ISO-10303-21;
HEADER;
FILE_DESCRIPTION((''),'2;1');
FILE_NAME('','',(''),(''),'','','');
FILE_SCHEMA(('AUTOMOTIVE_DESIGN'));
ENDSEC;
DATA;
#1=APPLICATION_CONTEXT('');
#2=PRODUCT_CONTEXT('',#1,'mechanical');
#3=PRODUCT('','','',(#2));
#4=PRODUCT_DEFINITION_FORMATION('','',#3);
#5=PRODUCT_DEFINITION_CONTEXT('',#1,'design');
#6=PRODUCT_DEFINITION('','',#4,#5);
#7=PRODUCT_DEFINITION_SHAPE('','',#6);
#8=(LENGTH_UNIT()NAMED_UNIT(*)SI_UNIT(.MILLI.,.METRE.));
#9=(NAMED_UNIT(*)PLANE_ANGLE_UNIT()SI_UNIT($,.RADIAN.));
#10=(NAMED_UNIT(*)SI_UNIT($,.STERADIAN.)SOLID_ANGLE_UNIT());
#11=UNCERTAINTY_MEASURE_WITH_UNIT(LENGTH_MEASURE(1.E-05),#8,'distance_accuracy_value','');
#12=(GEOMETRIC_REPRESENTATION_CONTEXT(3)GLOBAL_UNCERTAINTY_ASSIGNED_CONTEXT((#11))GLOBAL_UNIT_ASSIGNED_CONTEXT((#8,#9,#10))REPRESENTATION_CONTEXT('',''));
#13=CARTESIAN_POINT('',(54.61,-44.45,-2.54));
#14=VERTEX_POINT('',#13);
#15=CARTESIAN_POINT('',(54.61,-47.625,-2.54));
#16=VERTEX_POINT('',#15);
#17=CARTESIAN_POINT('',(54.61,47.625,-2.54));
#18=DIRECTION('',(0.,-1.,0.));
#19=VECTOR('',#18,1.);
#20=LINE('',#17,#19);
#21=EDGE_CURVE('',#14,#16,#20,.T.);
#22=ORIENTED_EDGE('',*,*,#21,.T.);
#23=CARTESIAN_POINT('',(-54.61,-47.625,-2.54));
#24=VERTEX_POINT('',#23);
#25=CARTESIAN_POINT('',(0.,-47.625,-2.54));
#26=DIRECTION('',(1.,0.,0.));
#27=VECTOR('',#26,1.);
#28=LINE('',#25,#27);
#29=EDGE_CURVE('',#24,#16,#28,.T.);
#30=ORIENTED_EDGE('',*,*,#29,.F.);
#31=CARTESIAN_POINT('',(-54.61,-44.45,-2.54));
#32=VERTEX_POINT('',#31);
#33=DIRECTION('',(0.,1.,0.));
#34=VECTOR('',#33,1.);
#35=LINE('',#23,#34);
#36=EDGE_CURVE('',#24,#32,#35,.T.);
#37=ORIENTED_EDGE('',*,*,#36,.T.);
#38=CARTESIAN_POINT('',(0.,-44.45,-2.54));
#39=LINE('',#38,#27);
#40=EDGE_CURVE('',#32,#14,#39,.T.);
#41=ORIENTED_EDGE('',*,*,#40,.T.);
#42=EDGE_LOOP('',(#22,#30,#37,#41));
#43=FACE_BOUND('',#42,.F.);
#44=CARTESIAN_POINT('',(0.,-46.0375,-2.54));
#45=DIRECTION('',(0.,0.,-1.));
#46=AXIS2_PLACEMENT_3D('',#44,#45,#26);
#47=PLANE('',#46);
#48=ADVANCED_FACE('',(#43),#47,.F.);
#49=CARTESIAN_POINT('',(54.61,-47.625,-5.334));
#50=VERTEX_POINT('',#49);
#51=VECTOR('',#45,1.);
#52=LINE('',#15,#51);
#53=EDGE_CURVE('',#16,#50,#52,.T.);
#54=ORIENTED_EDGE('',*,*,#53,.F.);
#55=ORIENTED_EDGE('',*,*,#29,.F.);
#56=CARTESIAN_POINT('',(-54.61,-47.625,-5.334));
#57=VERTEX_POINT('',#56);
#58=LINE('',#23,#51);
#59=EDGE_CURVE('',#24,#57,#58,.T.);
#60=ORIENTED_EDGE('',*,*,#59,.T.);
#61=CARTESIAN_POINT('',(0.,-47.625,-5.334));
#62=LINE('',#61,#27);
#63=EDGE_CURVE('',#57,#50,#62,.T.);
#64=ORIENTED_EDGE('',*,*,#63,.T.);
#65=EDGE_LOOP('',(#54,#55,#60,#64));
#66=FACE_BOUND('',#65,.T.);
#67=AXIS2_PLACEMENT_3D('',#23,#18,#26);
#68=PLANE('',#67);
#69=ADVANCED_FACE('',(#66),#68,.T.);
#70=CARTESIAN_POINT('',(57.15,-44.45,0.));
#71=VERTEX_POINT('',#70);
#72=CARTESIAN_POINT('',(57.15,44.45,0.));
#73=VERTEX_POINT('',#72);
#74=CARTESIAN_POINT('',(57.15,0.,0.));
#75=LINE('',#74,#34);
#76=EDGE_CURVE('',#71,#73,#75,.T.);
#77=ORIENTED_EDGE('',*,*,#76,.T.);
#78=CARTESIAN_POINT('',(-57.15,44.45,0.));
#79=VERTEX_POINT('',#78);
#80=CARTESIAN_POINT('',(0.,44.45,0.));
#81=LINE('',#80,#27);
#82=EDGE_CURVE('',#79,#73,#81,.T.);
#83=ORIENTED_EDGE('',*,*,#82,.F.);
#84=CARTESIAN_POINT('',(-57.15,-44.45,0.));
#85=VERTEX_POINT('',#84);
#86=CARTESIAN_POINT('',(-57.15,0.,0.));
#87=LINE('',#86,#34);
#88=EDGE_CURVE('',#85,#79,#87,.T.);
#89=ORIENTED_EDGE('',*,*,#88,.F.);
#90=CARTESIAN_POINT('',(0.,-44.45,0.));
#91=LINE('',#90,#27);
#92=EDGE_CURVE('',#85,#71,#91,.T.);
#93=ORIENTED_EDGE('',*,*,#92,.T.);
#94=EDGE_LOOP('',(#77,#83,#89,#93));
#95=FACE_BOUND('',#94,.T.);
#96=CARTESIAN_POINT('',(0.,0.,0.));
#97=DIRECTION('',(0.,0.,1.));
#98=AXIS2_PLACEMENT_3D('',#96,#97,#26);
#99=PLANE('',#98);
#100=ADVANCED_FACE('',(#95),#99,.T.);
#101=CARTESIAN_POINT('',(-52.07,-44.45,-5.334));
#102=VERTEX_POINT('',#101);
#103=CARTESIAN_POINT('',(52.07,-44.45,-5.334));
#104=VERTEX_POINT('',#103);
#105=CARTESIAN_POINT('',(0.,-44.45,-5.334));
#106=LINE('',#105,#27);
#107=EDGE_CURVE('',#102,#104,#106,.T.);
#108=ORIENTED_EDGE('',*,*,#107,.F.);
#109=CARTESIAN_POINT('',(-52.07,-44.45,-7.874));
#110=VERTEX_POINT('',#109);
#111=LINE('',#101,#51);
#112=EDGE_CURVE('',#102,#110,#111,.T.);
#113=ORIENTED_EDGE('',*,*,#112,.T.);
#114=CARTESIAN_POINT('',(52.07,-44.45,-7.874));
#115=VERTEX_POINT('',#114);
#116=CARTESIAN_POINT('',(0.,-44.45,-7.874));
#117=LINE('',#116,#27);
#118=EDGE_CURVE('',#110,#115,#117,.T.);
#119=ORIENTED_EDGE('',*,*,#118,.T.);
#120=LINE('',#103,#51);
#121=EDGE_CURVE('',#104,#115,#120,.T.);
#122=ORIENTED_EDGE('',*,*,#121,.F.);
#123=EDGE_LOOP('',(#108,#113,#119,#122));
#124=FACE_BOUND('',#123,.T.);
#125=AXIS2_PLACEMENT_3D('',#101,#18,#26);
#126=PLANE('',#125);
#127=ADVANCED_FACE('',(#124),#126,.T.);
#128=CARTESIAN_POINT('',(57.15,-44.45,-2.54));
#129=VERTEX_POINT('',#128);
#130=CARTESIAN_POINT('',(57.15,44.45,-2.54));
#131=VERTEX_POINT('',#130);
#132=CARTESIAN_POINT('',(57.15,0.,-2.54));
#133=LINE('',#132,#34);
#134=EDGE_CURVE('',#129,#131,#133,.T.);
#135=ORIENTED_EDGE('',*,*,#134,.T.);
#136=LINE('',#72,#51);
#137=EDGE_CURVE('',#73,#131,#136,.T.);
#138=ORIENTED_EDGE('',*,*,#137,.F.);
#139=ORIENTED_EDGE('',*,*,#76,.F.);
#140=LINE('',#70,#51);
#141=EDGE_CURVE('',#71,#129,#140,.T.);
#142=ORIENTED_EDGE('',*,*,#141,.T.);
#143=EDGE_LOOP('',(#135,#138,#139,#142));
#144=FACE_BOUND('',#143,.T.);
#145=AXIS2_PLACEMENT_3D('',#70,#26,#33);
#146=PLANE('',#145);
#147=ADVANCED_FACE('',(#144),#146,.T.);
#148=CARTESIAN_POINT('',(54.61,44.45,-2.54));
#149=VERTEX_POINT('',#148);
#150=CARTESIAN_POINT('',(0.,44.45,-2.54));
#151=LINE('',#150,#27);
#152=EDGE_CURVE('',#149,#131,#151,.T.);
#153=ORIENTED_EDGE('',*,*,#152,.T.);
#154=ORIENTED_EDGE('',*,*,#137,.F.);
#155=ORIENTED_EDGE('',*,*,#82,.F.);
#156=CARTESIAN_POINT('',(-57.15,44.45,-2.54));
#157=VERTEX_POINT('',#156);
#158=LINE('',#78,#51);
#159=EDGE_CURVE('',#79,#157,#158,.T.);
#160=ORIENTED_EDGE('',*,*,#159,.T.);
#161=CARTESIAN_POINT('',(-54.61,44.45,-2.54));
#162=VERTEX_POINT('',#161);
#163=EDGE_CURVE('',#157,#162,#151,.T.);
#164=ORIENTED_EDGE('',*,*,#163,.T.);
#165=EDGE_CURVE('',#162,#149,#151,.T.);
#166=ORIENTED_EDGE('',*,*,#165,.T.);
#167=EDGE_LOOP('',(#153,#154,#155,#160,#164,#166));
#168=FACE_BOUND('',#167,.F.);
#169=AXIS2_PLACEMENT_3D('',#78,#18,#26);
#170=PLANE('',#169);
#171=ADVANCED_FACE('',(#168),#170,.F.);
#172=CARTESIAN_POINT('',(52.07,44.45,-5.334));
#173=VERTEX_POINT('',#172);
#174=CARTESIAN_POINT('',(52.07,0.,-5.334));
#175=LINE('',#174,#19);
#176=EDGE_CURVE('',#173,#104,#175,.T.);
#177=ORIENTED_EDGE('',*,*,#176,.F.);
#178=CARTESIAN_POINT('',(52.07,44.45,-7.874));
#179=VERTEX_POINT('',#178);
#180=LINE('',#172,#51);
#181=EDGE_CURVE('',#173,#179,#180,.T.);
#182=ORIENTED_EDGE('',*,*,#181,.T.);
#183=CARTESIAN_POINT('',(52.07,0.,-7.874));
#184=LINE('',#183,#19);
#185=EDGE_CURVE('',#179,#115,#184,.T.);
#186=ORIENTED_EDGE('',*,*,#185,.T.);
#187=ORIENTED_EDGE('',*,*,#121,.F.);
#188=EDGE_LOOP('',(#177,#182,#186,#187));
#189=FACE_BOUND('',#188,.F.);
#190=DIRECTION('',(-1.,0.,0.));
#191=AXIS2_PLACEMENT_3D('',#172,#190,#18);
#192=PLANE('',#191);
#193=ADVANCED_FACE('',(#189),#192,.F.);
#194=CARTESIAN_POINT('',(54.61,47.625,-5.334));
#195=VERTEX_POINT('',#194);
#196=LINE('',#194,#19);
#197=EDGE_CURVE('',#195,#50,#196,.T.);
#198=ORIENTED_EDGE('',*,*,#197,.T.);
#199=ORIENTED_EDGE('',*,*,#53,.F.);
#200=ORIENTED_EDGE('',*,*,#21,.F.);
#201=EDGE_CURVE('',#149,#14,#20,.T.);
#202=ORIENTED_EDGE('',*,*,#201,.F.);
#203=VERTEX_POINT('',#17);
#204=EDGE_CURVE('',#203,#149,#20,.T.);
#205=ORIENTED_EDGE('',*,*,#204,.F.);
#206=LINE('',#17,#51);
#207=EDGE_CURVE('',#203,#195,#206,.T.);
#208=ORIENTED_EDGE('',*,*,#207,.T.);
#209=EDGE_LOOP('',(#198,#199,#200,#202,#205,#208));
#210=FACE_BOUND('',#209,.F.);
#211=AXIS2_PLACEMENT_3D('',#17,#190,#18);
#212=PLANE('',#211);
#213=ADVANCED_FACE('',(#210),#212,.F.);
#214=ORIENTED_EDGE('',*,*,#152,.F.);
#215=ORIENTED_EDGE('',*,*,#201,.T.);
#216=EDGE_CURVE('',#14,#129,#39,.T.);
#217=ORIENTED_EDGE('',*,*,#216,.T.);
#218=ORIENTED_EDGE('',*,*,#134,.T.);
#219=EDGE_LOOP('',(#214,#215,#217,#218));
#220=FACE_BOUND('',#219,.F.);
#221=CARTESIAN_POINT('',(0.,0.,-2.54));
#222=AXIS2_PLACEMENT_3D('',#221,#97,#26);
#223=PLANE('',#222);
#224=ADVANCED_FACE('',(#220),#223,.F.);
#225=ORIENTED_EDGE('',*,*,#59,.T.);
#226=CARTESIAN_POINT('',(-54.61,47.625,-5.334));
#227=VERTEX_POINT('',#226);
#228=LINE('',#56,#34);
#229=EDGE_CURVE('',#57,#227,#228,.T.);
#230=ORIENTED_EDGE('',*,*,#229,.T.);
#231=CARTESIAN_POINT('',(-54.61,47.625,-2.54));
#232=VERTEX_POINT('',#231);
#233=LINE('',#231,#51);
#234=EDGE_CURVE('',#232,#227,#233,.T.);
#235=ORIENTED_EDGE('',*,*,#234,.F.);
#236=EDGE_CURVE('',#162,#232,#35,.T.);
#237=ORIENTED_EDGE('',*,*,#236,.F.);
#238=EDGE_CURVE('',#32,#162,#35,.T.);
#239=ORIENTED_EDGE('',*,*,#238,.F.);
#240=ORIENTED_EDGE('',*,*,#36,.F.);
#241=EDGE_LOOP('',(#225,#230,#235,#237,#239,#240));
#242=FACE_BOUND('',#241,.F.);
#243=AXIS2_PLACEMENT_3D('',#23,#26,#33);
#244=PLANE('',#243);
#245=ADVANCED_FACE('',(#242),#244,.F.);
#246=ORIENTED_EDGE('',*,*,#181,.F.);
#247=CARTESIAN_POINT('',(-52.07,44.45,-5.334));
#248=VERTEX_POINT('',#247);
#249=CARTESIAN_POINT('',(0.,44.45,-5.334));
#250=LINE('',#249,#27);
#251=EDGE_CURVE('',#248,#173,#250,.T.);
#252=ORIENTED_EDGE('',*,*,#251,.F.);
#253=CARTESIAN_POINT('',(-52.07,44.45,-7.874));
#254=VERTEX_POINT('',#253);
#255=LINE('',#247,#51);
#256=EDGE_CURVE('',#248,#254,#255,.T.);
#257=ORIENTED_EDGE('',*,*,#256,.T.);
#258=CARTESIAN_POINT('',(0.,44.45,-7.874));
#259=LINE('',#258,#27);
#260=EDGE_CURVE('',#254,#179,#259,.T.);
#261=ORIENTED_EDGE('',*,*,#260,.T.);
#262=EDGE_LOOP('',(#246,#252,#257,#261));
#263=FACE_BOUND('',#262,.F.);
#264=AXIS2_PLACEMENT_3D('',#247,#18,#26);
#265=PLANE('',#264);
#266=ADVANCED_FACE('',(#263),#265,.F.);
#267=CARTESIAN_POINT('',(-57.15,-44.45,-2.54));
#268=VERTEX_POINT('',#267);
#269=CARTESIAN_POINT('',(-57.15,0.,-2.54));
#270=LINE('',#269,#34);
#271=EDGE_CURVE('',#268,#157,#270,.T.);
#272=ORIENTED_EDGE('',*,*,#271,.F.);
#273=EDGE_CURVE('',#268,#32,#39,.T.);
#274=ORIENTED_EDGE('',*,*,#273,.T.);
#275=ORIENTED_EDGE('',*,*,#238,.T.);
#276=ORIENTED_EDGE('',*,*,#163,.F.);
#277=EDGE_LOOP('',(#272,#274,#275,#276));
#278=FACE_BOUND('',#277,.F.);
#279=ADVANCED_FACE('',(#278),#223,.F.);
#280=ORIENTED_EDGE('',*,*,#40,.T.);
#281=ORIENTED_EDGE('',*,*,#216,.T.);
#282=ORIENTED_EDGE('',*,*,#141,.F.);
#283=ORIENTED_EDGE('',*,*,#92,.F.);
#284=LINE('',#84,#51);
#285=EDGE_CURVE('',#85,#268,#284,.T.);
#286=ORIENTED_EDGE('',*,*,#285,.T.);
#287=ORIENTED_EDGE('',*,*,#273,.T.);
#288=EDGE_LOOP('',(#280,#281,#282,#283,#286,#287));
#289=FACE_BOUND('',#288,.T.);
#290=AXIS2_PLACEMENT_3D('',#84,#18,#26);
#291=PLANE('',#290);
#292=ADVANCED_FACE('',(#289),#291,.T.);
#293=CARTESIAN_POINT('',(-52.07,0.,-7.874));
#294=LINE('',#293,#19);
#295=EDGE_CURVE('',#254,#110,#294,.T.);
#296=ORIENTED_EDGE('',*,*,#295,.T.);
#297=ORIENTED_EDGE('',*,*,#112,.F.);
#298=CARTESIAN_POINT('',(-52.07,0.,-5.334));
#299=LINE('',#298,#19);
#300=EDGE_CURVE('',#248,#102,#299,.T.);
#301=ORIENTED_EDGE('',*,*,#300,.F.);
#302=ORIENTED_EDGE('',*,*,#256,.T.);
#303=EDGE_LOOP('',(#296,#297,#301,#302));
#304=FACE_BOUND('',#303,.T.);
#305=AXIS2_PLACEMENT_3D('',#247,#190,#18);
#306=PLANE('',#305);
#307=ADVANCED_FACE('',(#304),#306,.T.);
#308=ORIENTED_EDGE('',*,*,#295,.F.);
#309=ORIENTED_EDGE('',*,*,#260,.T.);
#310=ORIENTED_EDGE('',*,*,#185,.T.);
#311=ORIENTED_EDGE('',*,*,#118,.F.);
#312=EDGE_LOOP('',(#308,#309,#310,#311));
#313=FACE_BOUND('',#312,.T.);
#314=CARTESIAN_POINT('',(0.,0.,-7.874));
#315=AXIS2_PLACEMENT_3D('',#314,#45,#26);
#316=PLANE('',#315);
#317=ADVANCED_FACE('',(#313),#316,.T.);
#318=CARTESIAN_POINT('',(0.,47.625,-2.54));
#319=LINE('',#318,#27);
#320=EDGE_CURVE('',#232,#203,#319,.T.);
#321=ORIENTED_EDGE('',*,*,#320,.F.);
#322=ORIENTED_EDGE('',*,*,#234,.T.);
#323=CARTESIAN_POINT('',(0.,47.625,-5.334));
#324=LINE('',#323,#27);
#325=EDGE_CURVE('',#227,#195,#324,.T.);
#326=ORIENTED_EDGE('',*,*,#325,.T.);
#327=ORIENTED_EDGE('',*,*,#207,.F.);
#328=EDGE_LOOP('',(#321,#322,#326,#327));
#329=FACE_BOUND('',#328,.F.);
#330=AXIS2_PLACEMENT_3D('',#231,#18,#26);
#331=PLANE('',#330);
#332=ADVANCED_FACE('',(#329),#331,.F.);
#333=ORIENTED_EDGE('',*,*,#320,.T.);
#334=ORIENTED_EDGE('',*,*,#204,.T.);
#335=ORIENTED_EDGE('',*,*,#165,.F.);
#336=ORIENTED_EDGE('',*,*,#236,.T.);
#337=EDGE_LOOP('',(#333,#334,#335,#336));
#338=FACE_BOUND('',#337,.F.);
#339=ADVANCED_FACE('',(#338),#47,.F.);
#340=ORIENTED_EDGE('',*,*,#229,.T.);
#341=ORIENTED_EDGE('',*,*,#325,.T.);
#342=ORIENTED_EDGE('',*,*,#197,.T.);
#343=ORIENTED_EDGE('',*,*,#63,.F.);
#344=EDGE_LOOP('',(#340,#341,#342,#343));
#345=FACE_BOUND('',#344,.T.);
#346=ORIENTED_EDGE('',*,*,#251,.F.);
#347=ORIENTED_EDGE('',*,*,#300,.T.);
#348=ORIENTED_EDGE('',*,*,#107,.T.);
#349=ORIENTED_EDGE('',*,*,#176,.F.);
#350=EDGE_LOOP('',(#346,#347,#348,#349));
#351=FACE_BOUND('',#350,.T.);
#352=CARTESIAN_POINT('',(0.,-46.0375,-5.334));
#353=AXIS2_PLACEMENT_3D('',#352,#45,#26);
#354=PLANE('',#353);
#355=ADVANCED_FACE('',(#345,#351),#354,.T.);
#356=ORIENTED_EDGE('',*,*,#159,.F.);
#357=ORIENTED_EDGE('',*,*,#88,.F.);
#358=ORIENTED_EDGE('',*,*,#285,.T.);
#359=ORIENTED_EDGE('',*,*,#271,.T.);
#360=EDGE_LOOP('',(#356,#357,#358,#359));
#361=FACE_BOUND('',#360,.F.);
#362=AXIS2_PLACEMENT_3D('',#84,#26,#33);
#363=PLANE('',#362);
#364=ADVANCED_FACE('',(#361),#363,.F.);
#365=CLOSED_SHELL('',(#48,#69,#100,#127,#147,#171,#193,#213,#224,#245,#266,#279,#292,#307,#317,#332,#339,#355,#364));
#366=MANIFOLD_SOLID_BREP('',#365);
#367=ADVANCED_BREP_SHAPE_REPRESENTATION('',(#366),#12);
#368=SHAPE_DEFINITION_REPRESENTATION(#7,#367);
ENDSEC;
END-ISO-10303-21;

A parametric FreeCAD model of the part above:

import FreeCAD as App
import Part
import Sketcher
from FreeCAD import Vector
Q = App.Units.Quantity


def add_polygon(sketch, points):
    """Adds a closed chain of lines whose ends are joined by coincident constraints."""
    first, n = sketch.GeometryCount, len(points)
    for a, b in zip(points, points[1:] + points[:1]):
        sketch.addGeometry(Part.LineSegment(App.Vector(*a, 0), App.Vector(*b, 0)), False)
    for i in range(n):
        sketch.addConstraint(Sketcher.Constraint("Coincident", first + i, 2, first + (i + 1) % n, 1))

doc = App.newDocument("Part")
body = doc.addObject("PartDesign::Body", "Body")

# Sketch on XY plane
sketch1 = doc.addObject("Sketcher::SketchObject", "Sketch")
body.addObject(sketch1)
sketch1.AttachmentSupport = (doc.XY_Plane, [""])
sketch1.MapMode = "FlatFace"
add_polygon(sketch1, [(-57, 44), (-57, -44), (57, -44), (57, 44)])  # lines 0-3
sketch1.addConstraint([
    Sketcher.Constraint("Vertical", 0),
    Sketcher.Constraint("Horizontal", 1),
    Sketcher.Constraint("Vertical", 2),
    Sketcher.Constraint("Horizontal", 3),
    Sketcher.Constraint("Symmetric", 0, 2, 2, 2, -1, 1),
    Sketcher.Constraint("DistanceX", 1, 1, 1, 2, Q("4.5 in")),
    Sketcher.Constraint("DistanceY", 0, 2, 0, 1, Q("3.5 in")),
])
pad1 = doc.addObject("PartDesign::Pad", "Pad")
body.addObject(pad1)
pad1.Profile = sketch1
pad1.Length = Q("0.1 in")
pad1.Reversed = True

# Sketch on XY plane
sketch2 = doc.addObject("Sketcher::SketchObject", "Sketch001")
body.addObject(sketch2)
sketch2.AttachmentSupport = (doc.XY_Plane, [""])
sketch2.MapMode = "FlatFace"
sketch2.AttachmentOffset = App.Placement(Vector(0, 0, -0.1 * 25.4), App.Rotation())
add_polygon(sketch2, [(-55, -48), (-55, 48), (55, 48), (55, -48)])  # lines 0-3
sketch2.addConstraint([
    Sketcher.Constraint("Vertical", 0),
    Sketcher.Constraint("Horizontal", 1),
    Sketcher.Constraint("Vertical", 2),
    Sketcher.Constraint("Horizontal", 3),
    Sketcher.Constraint("Symmetric", 0, 2, 2, 2, -1, 1),
    Sketcher.Constraint("DistanceX", 1, 1, 1, 2, Q("4.3 in")),
    Sketcher.Constraint("DistanceY", 0, 1, 0, 2, Q("3.75 in")),
])
pad2 = doc.addObject("PartDesign::Pad", "Pad001")
body.addObject(pad2)
pad2.Profile = sketch2
pad2.Length = Q("0.11 in")
pad2.Reversed = True

# Sketch on XY plane
sketch3 = doc.addObject("Sketcher::SketchObject", "Sketch002")
body.addObject(sketch3)
sketch3.AttachmentSupport = (doc.XY_Plane, [""])
sketch3.MapMode = "FlatFace"
sketch3.AttachmentOffset = App.Placement(Vector(0, 0, -0.21 * 25.4), App.Rotation())
add_polygon(sketch3, [(-52, -44), (-52, 44), (52, 44), (52, -44)])  # lines 0-3
sketch3.addConstraint([
    Sketcher.Constraint("Vertical", 0),
    Sketcher.Constraint("Horizontal", 1),
    Sketcher.Constraint("Vertical", 2),
    Sketcher.Constraint("Horizontal", 3),
    Sketcher.Constraint("Symmetric", 0, 2, 2, 2, -1, 1),
    Sketcher.Constraint("DistanceX", 1, 1, 1, 2, Q("4.1 in")),
    Sketcher.Constraint("DistanceY", 0, 1, 0, 2, Q("3.5 in")),
])
pad3 = doc.addObject("PartDesign::Pad", "Pad002")
body.addObject(pad3)
pad3.Profile = sketch3
pad3.Length = Q("0.1 in")
pad3.Reversed = True

doc.recompute()
